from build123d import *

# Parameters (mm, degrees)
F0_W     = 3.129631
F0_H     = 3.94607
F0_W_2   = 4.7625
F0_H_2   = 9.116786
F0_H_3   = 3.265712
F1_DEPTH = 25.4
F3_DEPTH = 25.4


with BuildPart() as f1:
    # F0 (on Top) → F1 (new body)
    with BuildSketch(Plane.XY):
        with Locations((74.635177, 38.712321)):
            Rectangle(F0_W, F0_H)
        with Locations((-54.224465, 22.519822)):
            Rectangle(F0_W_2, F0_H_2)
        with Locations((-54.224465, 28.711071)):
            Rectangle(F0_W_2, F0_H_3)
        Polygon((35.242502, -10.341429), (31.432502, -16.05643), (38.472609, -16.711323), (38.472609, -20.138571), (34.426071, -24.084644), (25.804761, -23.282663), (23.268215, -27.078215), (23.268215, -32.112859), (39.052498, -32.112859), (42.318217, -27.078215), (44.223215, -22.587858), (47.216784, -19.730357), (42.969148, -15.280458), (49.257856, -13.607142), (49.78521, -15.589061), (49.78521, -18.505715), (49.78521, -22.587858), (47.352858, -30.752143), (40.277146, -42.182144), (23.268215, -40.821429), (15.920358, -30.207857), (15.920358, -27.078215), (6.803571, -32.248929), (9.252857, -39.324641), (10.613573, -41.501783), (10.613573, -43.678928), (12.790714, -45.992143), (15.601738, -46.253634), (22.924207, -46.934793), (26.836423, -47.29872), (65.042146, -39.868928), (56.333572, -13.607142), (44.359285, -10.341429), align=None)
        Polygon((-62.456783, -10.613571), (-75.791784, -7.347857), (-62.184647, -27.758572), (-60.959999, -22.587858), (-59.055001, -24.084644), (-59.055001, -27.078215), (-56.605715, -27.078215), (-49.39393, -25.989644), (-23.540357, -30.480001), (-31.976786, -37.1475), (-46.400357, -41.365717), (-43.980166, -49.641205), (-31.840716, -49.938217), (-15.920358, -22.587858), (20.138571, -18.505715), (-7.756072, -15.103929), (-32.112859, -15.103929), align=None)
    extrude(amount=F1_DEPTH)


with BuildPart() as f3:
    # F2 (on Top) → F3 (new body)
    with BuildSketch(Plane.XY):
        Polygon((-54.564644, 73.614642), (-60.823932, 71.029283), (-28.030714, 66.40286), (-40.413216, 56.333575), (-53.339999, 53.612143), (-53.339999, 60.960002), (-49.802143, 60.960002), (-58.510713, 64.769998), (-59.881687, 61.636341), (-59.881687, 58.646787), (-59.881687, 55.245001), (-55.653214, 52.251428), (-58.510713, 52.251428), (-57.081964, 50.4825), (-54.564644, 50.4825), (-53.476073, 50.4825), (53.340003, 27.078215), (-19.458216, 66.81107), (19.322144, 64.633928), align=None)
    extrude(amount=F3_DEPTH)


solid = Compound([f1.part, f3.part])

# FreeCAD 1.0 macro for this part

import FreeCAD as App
import Part
import Sketcher
Q = App.Units.Quantity

doc = App.newDocument("Part")
body = doc.addObject("PartDesign::Body", "Body")
body.AllowCompound = True

# Sketch on XY plane
sketch1 = body.newObject("Sketcher::SketchObject", "Sketch")
sketch1.AttachmentSupport = (doc.getObject("XY_Plane"), [""])
sketch1.MapMode = "FlatFace"
sketch1.addGeometry([
    Part.LineSegment(App.Vector(73.070362, 40.685356, 0), App.Vector(73.070362, 36.739286, 0)),  # 0
    Part.LineSegment(App.Vector(73.070362, 36.739286, 0), App.Vector(76.199992, 36.739286, 0)),  # 1
    Part.LineSegment(App.Vector(76.199992, 36.739286, 0), App.Vector(76.199992, 40.685356, 0)),  # 2
    Part.LineSegment(App.Vector(76.199992, 40.685356, 0), App.Vector(73.070362, 40.685356, 0)),  # 3
    Part.LineSegment(App.Vector(-56.605715, 17.961429, 0), App.Vector(-51.843215, 17.961429, 0)),  # 4
    Part.LineSegment(App.Vector(-51.843215, 17.961429, 0), App.Vector(-51.843215, 30.343927, 0)),  # 5
    Part.LineSegment(App.Vector(-51.843215, 30.343927, 0), App.Vector(-56.605715, 30.343927, 0)),  # 6
    Part.LineSegment(App.Vector(-56.605715, 30.343927, 0), App.Vector(-56.605715, 17.961429, 0)),  # 7
    Part.LineSegment(App.Vector(35.242502, -10.341429, 0), App.Vector(31.432502, -16.05643, 0)),  # 8
    Part.LineSegment(App.Vector(31.432502, -16.05643, 0), App.Vector(38.472609, -16.711323, 0)),  # 9
    Part.LineSegment(App.Vector(38.472609, -16.711323, 0), App.Vector(38.472609, -20.138571, 0)),  # 10
    Part.LineSegment(App.Vector(38.472609, -20.138571, 0), App.Vector(34.426071, -24.084644, 0)),  # 11
    Part.LineSegment(App.Vector(34.426071, -24.084644, 0), App.Vector(25.804761, -23.282663, 0)),  # 12
    Part.LineSegment(App.Vector(25.804761, -23.282663, 0), App.Vector(23.268215, -27.078215, 0)),  # 13
    Part.LineSegment(App.Vector(23.268215, -27.078215, 0), App.Vector(23.268215, -32.112859, 0)),  # 14
    Part.LineSegment(App.Vector(23.268215, -32.112859, 0), App.Vector(39.052498, -32.112859, 0)),  # 15
    Part.LineSegment(App.Vector(39.052498, -32.112859, 0), App.Vector(42.318217, -27.078215, 0)),  # 16
    Part.LineSegment(App.Vector(42.318217, -27.078215, 0), App.Vector(44.223215, -22.587858, 0)),  # 17
    Part.LineSegment(App.Vector(44.223215, -22.587858, 0), App.Vector(47.216784, -19.730357, 0)),  # 18
    Part.LineSegment(App.Vector(47.216784, -19.730357, 0), App.Vector(42.969148, -15.280458, 0)),  # 19
    Part.LineSegment(App.Vector(42.969148, -15.280458, 0), App.Vector(49.257856, -13.607142, 0)),  # 20
    Part.LineSegment(App.Vector(49.257856, -13.607142, 0), App.Vector(49.78521, -15.589061, 0)),  # 21
    Part.LineSegment(App.Vector(49.78521, -15.589061, 0), App.Vector(49.78521, -22.587858, 0)),  # 22
    Part.LineSegment(App.Vector(49.78521, -22.587858, 0), App.Vector(47.352858, -30.752143, 0)),  # 23
    Part.LineSegment(App.Vector(47.352858, -30.752143, 0), App.Vector(40.277146, -42.182144, 0)),  # 24
    Part.LineSegment(App.Vector(40.277146, -42.182144, 0), App.Vector(23.268215, -40.821429, 0)),  # 25
    Part.LineSegment(App.Vector(23.268215, -40.821429, 0), App.Vector(15.920358, -30.207857, 0)),  # 26
    Part.LineSegment(App.Vector(15.920358, -30.207857, 0), App.Vector(15.920358, -27.078215, 0)),  # 27
    Part.LineSegment(App.Vector(15.920358, -27.078215, 0), App.Vector(6.803571, -32.248929, 0)),  # 28
    Part.LineSegment(App.Vector(6.803571, -32.248929, 0), App.Vector(9.252857, -39.324641, 0)),  # 29
    Part.LineSegment(App.Vector(9.252857, -39.324641, 0), App.Vector(10.613573, -41.501783, 0)),  # 30
    Part.LineSegment(App.Vector(10.613573, -41.501783, 0), App.Vector(10.613573, -43.678928, 0)),  # 31
    Part.LineSegment(App.Vector(10.613573, -43.678928, 0), App.Vector(12.790714, -45.992143, 0)),  # 32
    Part.LineSegment(App.Vector(12.790714, -45.992143, 0), App.Vector(15.601738, -46.253634, 0)),  # 33
    Part.LineSegment(App.Vector(15.601738, -46.253634, 0), App.Vector(22.924207, -46.934793, 0)),  # 34
    Part.LineSegment(App.Vector(22.924207, -46.934793, 0), App.Vector(26.836423, -47.29872, 0)),  # 35
    Part.LineSegment(App.Vector(26.836423, -47.29872, 0), App.Vector(65.042146, -39.868928, 0)),  # 36
    Part.LineSegment(App.Vector(65.042146, -39.868928, 0), App.Vector(56.333572, -13.607142, 0)),  # 37
    Part.LineSegment(App.Vector(56.333572, -13.607142, 0), App.Vector(44.359285, -10.341429, 0)),  # 38
    Part.LineSegment(App.Vector(44.359285, -10.341429, 0), App.Vector(35.242502, -10.341429, 0)),  # 39
    Part.LineSegment(App.Vector(-62.456783, -10.613571, 0), App.Vector(-75.791784, -7.347857, 0)),  # 40
    Part.LineSegment(App.Vector(-75.791784, -7.347857, 0), App.Vector(-62.184647, -27.758572, 0)),  # 41
    Part.LineSegment(App.Vector(-62.184647, -27.758572, 0), App.Vector(-60.959999, -22.587858, 0)),  # 42
    Part.LineSegment(App.Vector(-60.959999, -22.587858, 0), App.Vector(-59.055001, -24.084644, 0)),  # 43
    Part.LineSegment(App.Vector(-59.055001, -24.084644, 0), App.Vector(-59.055001, -27.078215, 0)),  # 44
    Part.LineSegment(App.Vector(-59.055001, -27.078215, 0), App.Vector(-56.605715, -27.078215, 0)),  # 45
    Part.LineSegment(App.Vector(-56.605715, -27.078215, 0), App.Vector(-49.39393, -25.989644, 0)),  # 46
    Part.LineSegment(App.Vector(-49.39393, -25.989644, 0), App.Vector(-23.540357, -30.480001, 0)),  # 47
    Part.LineSegment(App.Vector(-23.540357, -30.480001, 0), App.Vector(-31.976786, -37.1475, 0)),  # 48
    Part.LineSegment(App.Vector(-31.976786, -37.1475, 0), App.Vector(-46.400357, -41.365717, 0)),  # 49
    Part.LineSegment(App.Vector(-46.400357, -41.365717, 0), App.Vector(-43.980166, -49.641205, 0)),  # 50
    Part.LineSegment(App.Vector(-43.980166, -49.641205, 0), App.Vector(-31.840716, -49.938217, 0)),  # 51
    Part.LineSegment(App.Vector(-31.840716, -49.938217, 0), App.Vector(-15.920358, -22.587858, 0)),  # 52
    Part.LineSegment(App.Vector(-15.920358, -22.587858, 0), App.Vector(20.138571, -18.505715, 0)),  # 53
    Part.LineSegment(App.Vector(20.138571, -18.505715, 0), App.Vector(-7.756072, -15.103929, 0)),  # 54
    Part.LineSegment(App.Vector(-7.756072, -15.103929, 0), App.Vector(-32.112859, -15.103929, 0)),  # 55
    Part.LineSegment(App.Vector(-32.112859, -15.103929, 0), App.Vector(-62.456783, -10.613571, 0)),  # 56
], False)
sketch1.addConstraint([
    Sketcher.Constraint("Coincident", 0, 2, 1, 1),
    Sketcher.Constraint("Coincident", 1, 2, 2, 1),
    Sketcher.Constraint("Coincident", 2, 2, 3, 1),
    Sketcher.Constraint("Coincident", 3, 2, 0, 1),
    Sketcher.Constraint("Coincident", 4, 2, 5, 1),
    Sketcher.Constraint("Coincident", 5, 2, 6, 1),
    Sketcher.Constraint("Coincident", 6, 2, 7, 1),
    Sketcher.Constraint("Coincident", 7, 2, 4, 1),
    Sketcher.Constraint("Coincident", 8, 2, 9, 1),
    Sketcher.Constraint("Coincident", 9, 2, 10, 1),
    Sketcher.Constraint("Coincident", 10, 2, 11, 1),
    Sketcher.Constraint("Coincident", 11, 2, 12, 1),
    Sketcher.Constraint("Coincident", 12, 2, 13, 1),
    Sketcher.Constraint("Coincident", 13, 2, 14, 1),
    Sketcher.Constraint("Coincident", 14, 2, 15, 1),
    Sketcher.Constraint("Coincident", 15, 2, 16, 1),
    Sketcher.Constraint("Coincident", 16, 2, 17, 1),
    Sketcher.Constraint("Coincident", 17, 2, 18, 1),
    Sketcher.Constraint("Coincident", 18, 2, 19, 1),
    Sketcher.Constraint("Coincident", 19, 2, 20, 1),
    Sketcher.Constraint("Coincident", 20, 2, 21, 1),
    Sketcher.Constraint("Coincident", 21, 2, 22, 1),
    Sketcher.Constraint("Coincident", 22, 2, 23, 1),
    Sketcher.Constraint("Coincident", 23, 2, 24, 1),
    Sketcher.Constraint("Coincident", 24, 2, 25, 1),
    Sketcher.Constraint("Coincident", 25, 2, 26, 1),
    Sketcher.Constraint("Coincident", 26, 2, 27, 1),
    Sketcher.Constraint("Coincident", 27, 2, 28, 1),
    Sketcher.Constraint("Coincident", 28, 2, 29, 1),
    Sketcher.Constraint("Coincident", 29, 2, 30, 1),
    Sketcher.Constraint("Coincident", 30, 2, 31, 1),
    Sketcher.Constraint("Coincident", 31, 2, 32, 1),
    Sketcher.Constraint("Coincident", 32, 2, 33, 1),
    Sketcher.Constraint("Coincident", 33, 2, 34, 1),
    Sketcher.Constraint("Coincident", 34, 2, 35, 1),
    Sketcher.Constraint("Coincident", 35, 2, 36, 1),
    Sketcher.Constraint("Coincident", 36, 2, 37, 1),
    Sketcher.Constraint("Coincident", 37, 2, 38, 1),
    Sketcher.Constraint("Coincident", 38, 2, 39, 1),
    Sketcher.Constraint("Coincident", 39, 2, 8, 1),
    Sketcher.Constraint("Coincident", 40, 2, 41, 1),
    Sketcher.Constraint("Coincident", 41, 2, 42, 1),
    Sketcher.Constraint("Coincident", 42, 2, 43, 1),
    Sketcher.Constraint("Coincident", 43, 2, 44, 1),
    Sketcher.Constraint("Coincident", 44, 2, 45, 1),
    Sketcher.Constraint("Coincident", 45, 2, 46, 1),
    Sketcher.Constraint("Coincident", 46, 2, 47, 1),
    Sketcher.Constraint("Coincident", 47, 2, 48, 1),
    Sketcher.Constraint("Coincident", 48, 2, 49, 1),
    Sketcher.Constraint("Coincident", 49, 2, 50, 1),
    Sketcher.Constraint("Coincident", 50, 2, 51, 1),
    Sketcher.Constraint("Coincident", 51, 2, 52, 1),
    Sketcher.Constraint("Coincident", 52, 2, 53, 1),
    Sketcher.Constraint("Coincident", 53, 2, 54, 1),
    Sketcher.Constraint("Coincident", 54, 2, 55, 1),
    Sketcher.Constraint("Coincident", 55, 2, 56, 1),
    Sketcher.Constraint("Coincident", 56, 2, 40, 1),
    Sketcher.Constraint("Vertical", 0),
    Sketcher.Constraint("Horizontal", 1),
    Sketcher.Constraint("Vertical", 2),
    Sketcher.Constraint("Horizontal", 3),
    Sketcher.Constraint("Horizontal", 4),
    Sketcher.Constraint("Vertical", 5),
    Sketcher.Constraint("Horizontal", 6),
    Sketcher.Constraint("Vertical", 7),
    Sketcher.Constraint("Vertical", 10),
    Sketcher.Constraint("Vertical", 14),
    Sketcher.Constraint("Horizontal", 15),
    Sketcher.Constraint("Vertical", 22),
    Sketcher.Constraint("Vertical", 27),
    Sketcher.Constraint("Vertical", 31),
    Sketcher.Constraint("Horizontal", 39),
    Sketcher.Constraint("Vertical", 44),
    Sketcher.Constraint("Horizontal", 45),
    Sketcher.Constraint("Horizontal", 55),
    Sketcher.Constraint("DistanceX", 42, 2, -1, 1, Q("2.4 in")),
    Sketcher.Constraint("DistanceY", 47, 2, -1, 1, Q("1.2 in")),
    Sketcher.Constraint("DistanceY", 41, 2, 7, 2, Q("1.8 in")),
    Sketcher.Constraint("DistanceY", 42, 2, 40, 2, Q("0.6 in")),
    Sketcher.Constraint("DistanceX", 47, 2, 52, 2, Q("0.3 in")),
    Sketcher.Constraint("DistanceX", 4, 1, 4, 2, Q("0.1875 in")),
    Sketcher.Constraint("DistanceY", 24, 2, 23, 2, Q("0.45 in")),
    Sketcher.Constraint("DistanceX", 28, 2, 30, 2, Q("0.1500001 in")),
    Sketcher.Constraint("DistanceY", 31, 2, 28, 2, Q("0.45 in")),
    Sketcher.Constraint("DistanceX", 8, 2, 39, 2, Q("0.15 in")),
    Sketcher.Constraint("DistanceY", 5, 1, 5, 2, Q("0.4874999 in")),
    Sketcher.Constraint("DistanceX", 43, 2, -1, 1, Q("2.325 in")),
    Sketcher.Constraint("DistanceX", 16, 2, 17, 2, Q("0.0749999 in")),
    Sketcher.Constraint("DistanceY", 15, 2, 17, 2, Q("0.375 in")),
    Sketcher.Constraint("DistanceY", 14, 2, 26, 2, Q("0.0750001 in")),
    Sketcher.Constraint("DistanceX", 24, 2, 36, 2, Q("0.975 in")),
    Sketcher.Constraint("DistanceY", 8, 2, 39, 2, Q("0.225 in")),
    Sketcher.Constraint("DistanceY", 46, 2, 43, 2, Q("0.075 in")),
    Sketcher.Constraint("DistanceY", 49, 2, 45, 2, Q("0.5625001 in")),
    Sketcher.Constraint("DistanceY", 28, 2, 54, 2, Q("0.675 in")),
    Sketcher.Constraint("DistanceX", 40, 2, 56, 2, Q("0.525 in")),
    Sketcher.Constraint("DistanceY", 41, 2, 56, 2, Q("0.675 in")),
    Sketcher.Constraint("DistanceX", -1, 1, 8, 2, Q("1.2375001 in")),
    Sketcher.Constraint("DistanceX", -1, 1, 15, 2, Q("1.5374999 in")),
    Sketcher.Constraint("DistanceY", 48, 2, -1, 1, Q("1.4625 in")),
    Sketcher.Constraint("DistanceY", 17, 2, 18, 2, Q("0.1125 in")),
    Sketcher.Constraint("DistanceY", 22, 2, 18, 2, Q("0.1125 in")),
    Sketcher.Constraint("DistanceY", 24, 2, 11, 2, Q("0.7125 in")),
    Sketcher.Constraint("DistanceY", 25, 2, 28, 2, Q("0.3375 in")),
    Sketcher.Constraint("DistanceX", 29, 2, 26, 2, Q("0.2625 in")),
    Sketcher.Constraint("DistanceY", 32, 2, 29, 2, Q("0.2625001 in")),
    Sketcher.Constraint("DistanceX", 32, 2, 25, 2, Q("0.4125 in")),
    Sketcher.Constraint("DistanceX", 38, 2, 18, 2, Q("0.1125 in")),
    Sketcher.Constraint("DistanceY", 51, 2, 49, 2, Q("0.3375 in")),
    Sketcher.Constraint("DistanceY", 13, 2, 53, 2, Q("0.3375 in")),
    Sketcher.Constraint("DistanceY", 27, 2, 53, 2, Q("0.3375 in")),
    Sketcher.Constraint("DistanceX", 55, 2, 47, 2, Q("0.3375001 in")),
    Sketcher.Constraint("Distance", 9, Q("7.070501 mm")),
    Sketcher.Constraint("DistanceX", 1, 1, 1, 2, Q("3.129631 mm")),
    Sketcher.Constraint("DistanceY", 0, 2, 0, 1, Q("3.94607 mm")),
    Sketcher.Constraint("DistanceY", 44, 2, 44, 1, Q("2.993571 mm")),
    Sketcher.Constraint("DistanceX", 12, 2, 0, 2, Q("47.265601 mm")),
    Sketcher.Constraint("DistanceY", 18, 2, 19, 2, Q("4.449899 mm")),
    Sketcher.Constraint("DistanceX", 9, 2, 21, 2, Q("11.312601 mm")),
    Sketcher.Constraint("Distance", 12, Q("8.658531 mm")),
    Sketcher.Constraint("Distance", 18, Q("4.13845 mm")),
    Sketcher.Constraint("Distance", 19, Q("6.151749 mm")),
    Sketcher.Constraint("Distance", 20, Q("6.507521 mm")),
    Sketcher.Constraint("Distance", 21, Q("2.050879 mm")),
    Sketcher.Constraint("Distance", 26, Q("12.90887 mm")),
    Sketcher.Constraint("Distance", 30, Q("2.567391 mm")),
    Sketcher.Constraint("Distance", 32, Q("3.176619 mm")),
    Sketcher.Constraint("Distance", 33, Q("2.82316 mm")),
    Sketcher.Constraint("Distance", 40, Q("13.729062 mm")),
    Sketcher.Constraint("Distance", 42, Q("5.31376 mm")),
    Sketcher.Constraint("Distance", 43, Q("2.422682 mm")),
    Sketcher.Constraint("Distance", 46, Q("7.293479 mm")),
    Sketcher.Constraint("Distance", 53, Q("36.289258 mm")),
    Sketcher.Constraint("Distance", 56, Q("30.674371 mm")),
    Sketcher.Constraint("DistanceX", 15, 1, 15, 2, Q("15.784283 mm")),
    Sketcher.Constraint("DistanceX", 39, 2, 39, 1, Q("9.116783 mm")),
    Sketcher.Constraint("DistanceX", 45, 1, 45, 2, Q("2.449286 mm")),
    Sketcher.Constraint("DistanceX", 55, 2, 55, 1, Q("24.356787 mm")),
    Sketcher.Constraint("DistanceY", 10, 2, 10, 1, Q("3.427248 mm")),
    Sketcher.Constraint("DistanceY", 14, 2, 14, 1, Q("5.034644 mm")),
    Sketcher.Constraint("DistanceY", 22, 2, 22, 1, Q("6.998797 mm")),
    Sketcher.Constraint("DistanceY", 31, 2, 31, 1, Q("2.177145 mm")),
    Sketcher.Constraint("DistanceX", -1, 1, 0, 2, Q("73.070362 mm")),
    Sketcher.Constraint("DistanceY", -1, 1, 4, 2, Q("17.961429 mm")),
    Sketcher.Constraint("DistanceY", 8, 2, -1, 1, Q("16.05643 mm")),
    Sketcher.Constraint("DistanceX", -1, 1, 9, 2, Q("38.472609 mm")),
    Sketcher.Constraint("DistanceX", -1, 1, 11, 2, Q("34.426071 mm")),
    Sketcher.Constraint("DistanceY", 14, 2, -1, 1, Q("32.112859 mm")),
    Sketcher.Constraint("DistanceY", 25, 2, -1, 1, Q("40.821429 mm")),
    Sketcher.Constraint("DistanceX", -1, 1, 28, 2, Q("6.803571 mm")),
    Sketcher.Constraint("DistanceY", 35, 2, -1, 1, Q("47.29872 mm")),
    Sketcher.Constraint("DistanceX", -1, 1, 37, 2, Q("56.333572 mm")),
    Sketcher.Constraint("DistanceY", 52, 2, -1, 1, Q("22.587858 mm")),
    Sketcher.Constraint("DistanceX", -1, 1, 53, 2, Q("20.138571 mm")),
    Sketcher.Constraint("DistanceY", 5, 2, 0, 2, Q("6.395359 mm")),
    Sketcher.Constraint("DistanceY", 11, 2, 9, 2, Q("7.373321 mm")),
    Sketcher.Constraint("DistanceY", 16, 2, 11, 2, Q("2.993571 mm")),
    Sketcher.Constraint("DistanceX", 16, 2, 23, 2, Q("5.034641 mm")),
    Sketcher.Constraint("DistanceX", 15, 2, 24, 2, Q("1.224648 mm")),
    Sketcher.Constraint("DistanceY", 33, 2, 32, 2, Q("0.261491 mm")),
    Sketcher.Constraint("DistanceX", 34, 2, 25, 2, Q("0.344008 mm")),
    Sketcher.Constraint("DistanceY", 34, 2, 33, 2, Q("0.681159 mm")),
    Sketcher.Constraint("DistanceX", 32, 2, 35, 2, Q("14.045709 mm")),
    Sketcher.Constraint("DistanceY", 36, 2, 22, 2, Q("17.28107 mm")),
    Sketcher.Constraint("DistanceY", 21, 2, 37, 2, Q("1.981919 mm")),
    Sketcher.Constraint("DistanceX", 40, 2, 7, 2, Q("19.186069 mm")),
    Sketcher.Constraint("DistanceX", 48, 2, 47, 2, Q("8.436429 mm")),
    Sketcher.Constraint("DistanceX", 49, 2, 48, 2, Q("14.423571 mm")),
    Sketcher.Constraint("DistanceX", 49, 2, 50, 2, Q("2.420191 mm")),
    Sketcher.Constraint("DistanceY", 50, 2, 49, 2, Q("8.275488 mm")),
    Sketcher.Constraint("DistanceX", 50, 2, 51, 2, Q("12.13945 mm")),
])
pad1 = body.newObject("PartDesign::Pad", "Pad")
pad1.Profile = sketch1
pad1.Length = Q("1 in")
body2 = doc.addObject("PartDesign::Body", "Body001")

# Sketch on XY plane
sketch2 = body2.newObject("Sketcher::SketchObject", "Sketch001")
sketch2.AttachmentSupport = (doc.getObject("XY_Plane001"), [""])
sketch2.MapMode = "FlatFace"
sketch2.addGeometry([
    Part.LineSegment(App.Vector(-54.6, 73.6, 0), App.Vector(-60.8, 71, 0)),  # 0
    Part.LineSegment(App.Vector(-60.8, 71, 0), App.Vector(-28, 66.4, 0)),  # 1
    Part.LineSegment(App.Vector(-28, 66.4, 0), App.Vector(-40.4, 56.3, 0)),  # 2
    Part.LineSegment(App.Vector(-40.4, 56.3, 0), App.Vector(-53.3, 53.6, 0)),  # 3
    Part.LineSegment(App.Vector(-53.3, 53.6, 0), App.Vector(-53.3, 61, 0)),  # 4
    Part.LineSegment(App.Vector(-53.3, 61, 0), App.Vector(-49.8, 61, 0)),  # 5
    Part.LineSegment(App.Vector(-49.8, 61, 0), App.Vector(-58.5, 64.8, 0)),  # 6
    Part.LineSegment(App.Vector(-58.5, 64.8, 0), App.Vector(-59.9, 61.6, 0)),  # 7
    Part.LineSegment(App.Vector(-59.9, 61.6, 0), App.Vector(-59.9, 55.2, 0)),  # 8
    Part.LineSegment(App.Vector(-59.9, 55.2, 0), App.Vector(-55.7, 52.3, 0)),  # 9
    Part.LineSegment(App.Vector(-55.7, 52.3, 0), App.Vector(-58.5, 52.3, 0)),  # 10
    Part.LineSegment(App.Vector(-58.5, 52.3, 0), App.Vector(-57.1, 50.5, 0)),  # 11
    Part.LineSegment(App.Vector(-57.1, 50.5, 0), App.Vector(-53.5, 50.5, 0)),  # 12
    Part.LineSegment(App.Vector(-53.5, 50.5, 0), App.Vector(53.3, 27.1, 0)),  # 13
    Part.LineSegment(App.Vector(53.3, 27.1, 0), App.Vector(-19.5, 66.8, 0)),  # 14
    Part.LineSegment(App.Vector(-19.5, 66.8, 0), App.Vector(19.3, 64.6, 0)),  # 15
    Part.LineSegment(App.Vector(19.3, 64.6, 0), App.Vector(-54.6, 73.6, 0)),  # 16
], False)
sketch2.addConstraint([
    Sketcher.Constraint("Coincident", 0, 2, 1, 1),
    Sketcher.Constraint("Coincident", 1, 2, 2, 1),
    Sketcher.Constraint("Coincident", 2, 2, 3, 1),
    Sketcher.Constraint("Coincident", 3, 2, 4, 1),
    Sketcher.Constraint("Coincident", 4, 2, 5, 1),
    Sketcher.Constraint("Coincident", 5, 2, 6, 1),
    Sketcher.Constraint("Coincident", 6, 2, 7, 1),
    Sketcher.Constraint("Coincident", 7, 2, 8, 1),
    Sketcher.Constraint("Coincident", 8, 2, 9, 1),
    Sketcher.Constraint("Coincident", 9, 2, 10, 1),
    Sketcher.Constraint("Coincident", 10, 2, 11, 1),
    Sketcher.Constraint("Coincident", 11, 2, 12, 1),
    Sketcher.Constraint("Coincident", 12, 2, 13, 1),
    Sketcher.Constraint("Coincident", 13, 2, 14, 1),
    Sketcher.Constraint("Coincident", 14, 2, 15, 1),
    Sketcher.Constraint("Coincident", 15, 2, 16, 1),
    Sketcher.Constraint("Coincident", 16, 2, 0, 1),
    Sketcher.Constraint("Vertical", 4),
    Sketcher.Constraint("Horizontal", 5),
    Sketcher.Constraint("Vertical", 8),
    Sketcher.Constraint("Horizontal", 10),
    Sketcher.Constraint("Horizontal", 12),
    Sketcher.Constraint("Perpendicular", 6, 7),
    Sketcher.Constraint("Vertical", 6, 2, 10, 2),
    Sketcher.Constraint("DistanceX", 3, 2, -1, 1, Q("2.1 in")),
    Sketcher.Constraint("DistanceY", -1, 1, 4, 2, Q("2.4000001 in")),
    Sketcher.Constraint("DistanceX", -1, 1, 13, 2, Q("2.1000001 in")),
    Sketcher.Constraint("DistanceY", -1, 1, 6, 2, Q("2.5499999 in")),
    Sketcher.Constraint("DistanceX", 10, 2, 10, 1, Q("0.1125 in")),
    Sketcher.Constraint("DistanceY", -1, 1, 8, 2, Q("2.175 in")),
    Sketcher.Constraint("DistanceY", 11, 2, 8, 2, Q("0.1875 in")),
    Sketcher.Constraint("DistanceX", 2, 2, 14, 2, Q("0.825 in")),
    Sketcher.Constraint("DistanceX", 16, 2, 5, 2, Q("0.1875 in")),
    Sketcher.Constraint("DistanceX", 2, 2, 1, 2, Q("0.4875001 in")),
    Sketcher.Constraint("DistanceX", 6, 2, 2, 2, Q("0.7124999 in")),
    Sketcher.Constraint("DistanceY", 2, 2, 14, 2, Q("0.4124998 in")),
    Sketcher.Constraint("Distance", 14, Q("82.935399 mm")),
    Sketcher.Constraint("DistanceX", 12, 1, 12, 2, Q("3.605891 mm")),
    Sketcher.Constraint("DistanceY", 4, 1, 4, 2, Q("7.347859 mm")),
    Sketcher.Constraint("DistanceY", 8, 2, 8, 1, Q("6.39134 mm")),
    Sketcher.Constraint("DistanceY", 7, 2, 16, 2, Q("11.978301 mm")),
    Sketcher.Constraint("Distance", 2, Q("15.959851 mm")),
    Sketcher.Constraint("Distance", 6, Q("9.505538 mm")),
    Sketcher.Constraint("DistanceX", 5, 1, 5, 2, Q("3.537856 mm")),
    Sketcher.Constraint("DistanceY", -1, 1, 1, 2, Q("66.40286 mm")),
    Sketcher.Constraint("DistanceY", 2, 2, 0, 2, Q("14.695708 mm")),
    Sketcher.Constraint("DistanceX", 0, 2, 5, 2, Q("11.021789 mm")),
    Sketcher.Constraint("DistanceX", 10, 2, 11, 2, Q("1.428749 mm")),
    Sketcher.Constraint("DistanceX", 14, 2, 15, 2, Q("38.78036 mm")),
    Sketcher.Constraint("Distance", 9, Q("5.180875 mm")),
    Sketcher.Constraint("Distance", 15, Q("38.841425 mm")),
])
pad2 = body2.newObject("PartDesign::Pad", "Pad001")
pad2.Profile = sketch2
pad2.Length = Q("1 in")

doc.recompute()
